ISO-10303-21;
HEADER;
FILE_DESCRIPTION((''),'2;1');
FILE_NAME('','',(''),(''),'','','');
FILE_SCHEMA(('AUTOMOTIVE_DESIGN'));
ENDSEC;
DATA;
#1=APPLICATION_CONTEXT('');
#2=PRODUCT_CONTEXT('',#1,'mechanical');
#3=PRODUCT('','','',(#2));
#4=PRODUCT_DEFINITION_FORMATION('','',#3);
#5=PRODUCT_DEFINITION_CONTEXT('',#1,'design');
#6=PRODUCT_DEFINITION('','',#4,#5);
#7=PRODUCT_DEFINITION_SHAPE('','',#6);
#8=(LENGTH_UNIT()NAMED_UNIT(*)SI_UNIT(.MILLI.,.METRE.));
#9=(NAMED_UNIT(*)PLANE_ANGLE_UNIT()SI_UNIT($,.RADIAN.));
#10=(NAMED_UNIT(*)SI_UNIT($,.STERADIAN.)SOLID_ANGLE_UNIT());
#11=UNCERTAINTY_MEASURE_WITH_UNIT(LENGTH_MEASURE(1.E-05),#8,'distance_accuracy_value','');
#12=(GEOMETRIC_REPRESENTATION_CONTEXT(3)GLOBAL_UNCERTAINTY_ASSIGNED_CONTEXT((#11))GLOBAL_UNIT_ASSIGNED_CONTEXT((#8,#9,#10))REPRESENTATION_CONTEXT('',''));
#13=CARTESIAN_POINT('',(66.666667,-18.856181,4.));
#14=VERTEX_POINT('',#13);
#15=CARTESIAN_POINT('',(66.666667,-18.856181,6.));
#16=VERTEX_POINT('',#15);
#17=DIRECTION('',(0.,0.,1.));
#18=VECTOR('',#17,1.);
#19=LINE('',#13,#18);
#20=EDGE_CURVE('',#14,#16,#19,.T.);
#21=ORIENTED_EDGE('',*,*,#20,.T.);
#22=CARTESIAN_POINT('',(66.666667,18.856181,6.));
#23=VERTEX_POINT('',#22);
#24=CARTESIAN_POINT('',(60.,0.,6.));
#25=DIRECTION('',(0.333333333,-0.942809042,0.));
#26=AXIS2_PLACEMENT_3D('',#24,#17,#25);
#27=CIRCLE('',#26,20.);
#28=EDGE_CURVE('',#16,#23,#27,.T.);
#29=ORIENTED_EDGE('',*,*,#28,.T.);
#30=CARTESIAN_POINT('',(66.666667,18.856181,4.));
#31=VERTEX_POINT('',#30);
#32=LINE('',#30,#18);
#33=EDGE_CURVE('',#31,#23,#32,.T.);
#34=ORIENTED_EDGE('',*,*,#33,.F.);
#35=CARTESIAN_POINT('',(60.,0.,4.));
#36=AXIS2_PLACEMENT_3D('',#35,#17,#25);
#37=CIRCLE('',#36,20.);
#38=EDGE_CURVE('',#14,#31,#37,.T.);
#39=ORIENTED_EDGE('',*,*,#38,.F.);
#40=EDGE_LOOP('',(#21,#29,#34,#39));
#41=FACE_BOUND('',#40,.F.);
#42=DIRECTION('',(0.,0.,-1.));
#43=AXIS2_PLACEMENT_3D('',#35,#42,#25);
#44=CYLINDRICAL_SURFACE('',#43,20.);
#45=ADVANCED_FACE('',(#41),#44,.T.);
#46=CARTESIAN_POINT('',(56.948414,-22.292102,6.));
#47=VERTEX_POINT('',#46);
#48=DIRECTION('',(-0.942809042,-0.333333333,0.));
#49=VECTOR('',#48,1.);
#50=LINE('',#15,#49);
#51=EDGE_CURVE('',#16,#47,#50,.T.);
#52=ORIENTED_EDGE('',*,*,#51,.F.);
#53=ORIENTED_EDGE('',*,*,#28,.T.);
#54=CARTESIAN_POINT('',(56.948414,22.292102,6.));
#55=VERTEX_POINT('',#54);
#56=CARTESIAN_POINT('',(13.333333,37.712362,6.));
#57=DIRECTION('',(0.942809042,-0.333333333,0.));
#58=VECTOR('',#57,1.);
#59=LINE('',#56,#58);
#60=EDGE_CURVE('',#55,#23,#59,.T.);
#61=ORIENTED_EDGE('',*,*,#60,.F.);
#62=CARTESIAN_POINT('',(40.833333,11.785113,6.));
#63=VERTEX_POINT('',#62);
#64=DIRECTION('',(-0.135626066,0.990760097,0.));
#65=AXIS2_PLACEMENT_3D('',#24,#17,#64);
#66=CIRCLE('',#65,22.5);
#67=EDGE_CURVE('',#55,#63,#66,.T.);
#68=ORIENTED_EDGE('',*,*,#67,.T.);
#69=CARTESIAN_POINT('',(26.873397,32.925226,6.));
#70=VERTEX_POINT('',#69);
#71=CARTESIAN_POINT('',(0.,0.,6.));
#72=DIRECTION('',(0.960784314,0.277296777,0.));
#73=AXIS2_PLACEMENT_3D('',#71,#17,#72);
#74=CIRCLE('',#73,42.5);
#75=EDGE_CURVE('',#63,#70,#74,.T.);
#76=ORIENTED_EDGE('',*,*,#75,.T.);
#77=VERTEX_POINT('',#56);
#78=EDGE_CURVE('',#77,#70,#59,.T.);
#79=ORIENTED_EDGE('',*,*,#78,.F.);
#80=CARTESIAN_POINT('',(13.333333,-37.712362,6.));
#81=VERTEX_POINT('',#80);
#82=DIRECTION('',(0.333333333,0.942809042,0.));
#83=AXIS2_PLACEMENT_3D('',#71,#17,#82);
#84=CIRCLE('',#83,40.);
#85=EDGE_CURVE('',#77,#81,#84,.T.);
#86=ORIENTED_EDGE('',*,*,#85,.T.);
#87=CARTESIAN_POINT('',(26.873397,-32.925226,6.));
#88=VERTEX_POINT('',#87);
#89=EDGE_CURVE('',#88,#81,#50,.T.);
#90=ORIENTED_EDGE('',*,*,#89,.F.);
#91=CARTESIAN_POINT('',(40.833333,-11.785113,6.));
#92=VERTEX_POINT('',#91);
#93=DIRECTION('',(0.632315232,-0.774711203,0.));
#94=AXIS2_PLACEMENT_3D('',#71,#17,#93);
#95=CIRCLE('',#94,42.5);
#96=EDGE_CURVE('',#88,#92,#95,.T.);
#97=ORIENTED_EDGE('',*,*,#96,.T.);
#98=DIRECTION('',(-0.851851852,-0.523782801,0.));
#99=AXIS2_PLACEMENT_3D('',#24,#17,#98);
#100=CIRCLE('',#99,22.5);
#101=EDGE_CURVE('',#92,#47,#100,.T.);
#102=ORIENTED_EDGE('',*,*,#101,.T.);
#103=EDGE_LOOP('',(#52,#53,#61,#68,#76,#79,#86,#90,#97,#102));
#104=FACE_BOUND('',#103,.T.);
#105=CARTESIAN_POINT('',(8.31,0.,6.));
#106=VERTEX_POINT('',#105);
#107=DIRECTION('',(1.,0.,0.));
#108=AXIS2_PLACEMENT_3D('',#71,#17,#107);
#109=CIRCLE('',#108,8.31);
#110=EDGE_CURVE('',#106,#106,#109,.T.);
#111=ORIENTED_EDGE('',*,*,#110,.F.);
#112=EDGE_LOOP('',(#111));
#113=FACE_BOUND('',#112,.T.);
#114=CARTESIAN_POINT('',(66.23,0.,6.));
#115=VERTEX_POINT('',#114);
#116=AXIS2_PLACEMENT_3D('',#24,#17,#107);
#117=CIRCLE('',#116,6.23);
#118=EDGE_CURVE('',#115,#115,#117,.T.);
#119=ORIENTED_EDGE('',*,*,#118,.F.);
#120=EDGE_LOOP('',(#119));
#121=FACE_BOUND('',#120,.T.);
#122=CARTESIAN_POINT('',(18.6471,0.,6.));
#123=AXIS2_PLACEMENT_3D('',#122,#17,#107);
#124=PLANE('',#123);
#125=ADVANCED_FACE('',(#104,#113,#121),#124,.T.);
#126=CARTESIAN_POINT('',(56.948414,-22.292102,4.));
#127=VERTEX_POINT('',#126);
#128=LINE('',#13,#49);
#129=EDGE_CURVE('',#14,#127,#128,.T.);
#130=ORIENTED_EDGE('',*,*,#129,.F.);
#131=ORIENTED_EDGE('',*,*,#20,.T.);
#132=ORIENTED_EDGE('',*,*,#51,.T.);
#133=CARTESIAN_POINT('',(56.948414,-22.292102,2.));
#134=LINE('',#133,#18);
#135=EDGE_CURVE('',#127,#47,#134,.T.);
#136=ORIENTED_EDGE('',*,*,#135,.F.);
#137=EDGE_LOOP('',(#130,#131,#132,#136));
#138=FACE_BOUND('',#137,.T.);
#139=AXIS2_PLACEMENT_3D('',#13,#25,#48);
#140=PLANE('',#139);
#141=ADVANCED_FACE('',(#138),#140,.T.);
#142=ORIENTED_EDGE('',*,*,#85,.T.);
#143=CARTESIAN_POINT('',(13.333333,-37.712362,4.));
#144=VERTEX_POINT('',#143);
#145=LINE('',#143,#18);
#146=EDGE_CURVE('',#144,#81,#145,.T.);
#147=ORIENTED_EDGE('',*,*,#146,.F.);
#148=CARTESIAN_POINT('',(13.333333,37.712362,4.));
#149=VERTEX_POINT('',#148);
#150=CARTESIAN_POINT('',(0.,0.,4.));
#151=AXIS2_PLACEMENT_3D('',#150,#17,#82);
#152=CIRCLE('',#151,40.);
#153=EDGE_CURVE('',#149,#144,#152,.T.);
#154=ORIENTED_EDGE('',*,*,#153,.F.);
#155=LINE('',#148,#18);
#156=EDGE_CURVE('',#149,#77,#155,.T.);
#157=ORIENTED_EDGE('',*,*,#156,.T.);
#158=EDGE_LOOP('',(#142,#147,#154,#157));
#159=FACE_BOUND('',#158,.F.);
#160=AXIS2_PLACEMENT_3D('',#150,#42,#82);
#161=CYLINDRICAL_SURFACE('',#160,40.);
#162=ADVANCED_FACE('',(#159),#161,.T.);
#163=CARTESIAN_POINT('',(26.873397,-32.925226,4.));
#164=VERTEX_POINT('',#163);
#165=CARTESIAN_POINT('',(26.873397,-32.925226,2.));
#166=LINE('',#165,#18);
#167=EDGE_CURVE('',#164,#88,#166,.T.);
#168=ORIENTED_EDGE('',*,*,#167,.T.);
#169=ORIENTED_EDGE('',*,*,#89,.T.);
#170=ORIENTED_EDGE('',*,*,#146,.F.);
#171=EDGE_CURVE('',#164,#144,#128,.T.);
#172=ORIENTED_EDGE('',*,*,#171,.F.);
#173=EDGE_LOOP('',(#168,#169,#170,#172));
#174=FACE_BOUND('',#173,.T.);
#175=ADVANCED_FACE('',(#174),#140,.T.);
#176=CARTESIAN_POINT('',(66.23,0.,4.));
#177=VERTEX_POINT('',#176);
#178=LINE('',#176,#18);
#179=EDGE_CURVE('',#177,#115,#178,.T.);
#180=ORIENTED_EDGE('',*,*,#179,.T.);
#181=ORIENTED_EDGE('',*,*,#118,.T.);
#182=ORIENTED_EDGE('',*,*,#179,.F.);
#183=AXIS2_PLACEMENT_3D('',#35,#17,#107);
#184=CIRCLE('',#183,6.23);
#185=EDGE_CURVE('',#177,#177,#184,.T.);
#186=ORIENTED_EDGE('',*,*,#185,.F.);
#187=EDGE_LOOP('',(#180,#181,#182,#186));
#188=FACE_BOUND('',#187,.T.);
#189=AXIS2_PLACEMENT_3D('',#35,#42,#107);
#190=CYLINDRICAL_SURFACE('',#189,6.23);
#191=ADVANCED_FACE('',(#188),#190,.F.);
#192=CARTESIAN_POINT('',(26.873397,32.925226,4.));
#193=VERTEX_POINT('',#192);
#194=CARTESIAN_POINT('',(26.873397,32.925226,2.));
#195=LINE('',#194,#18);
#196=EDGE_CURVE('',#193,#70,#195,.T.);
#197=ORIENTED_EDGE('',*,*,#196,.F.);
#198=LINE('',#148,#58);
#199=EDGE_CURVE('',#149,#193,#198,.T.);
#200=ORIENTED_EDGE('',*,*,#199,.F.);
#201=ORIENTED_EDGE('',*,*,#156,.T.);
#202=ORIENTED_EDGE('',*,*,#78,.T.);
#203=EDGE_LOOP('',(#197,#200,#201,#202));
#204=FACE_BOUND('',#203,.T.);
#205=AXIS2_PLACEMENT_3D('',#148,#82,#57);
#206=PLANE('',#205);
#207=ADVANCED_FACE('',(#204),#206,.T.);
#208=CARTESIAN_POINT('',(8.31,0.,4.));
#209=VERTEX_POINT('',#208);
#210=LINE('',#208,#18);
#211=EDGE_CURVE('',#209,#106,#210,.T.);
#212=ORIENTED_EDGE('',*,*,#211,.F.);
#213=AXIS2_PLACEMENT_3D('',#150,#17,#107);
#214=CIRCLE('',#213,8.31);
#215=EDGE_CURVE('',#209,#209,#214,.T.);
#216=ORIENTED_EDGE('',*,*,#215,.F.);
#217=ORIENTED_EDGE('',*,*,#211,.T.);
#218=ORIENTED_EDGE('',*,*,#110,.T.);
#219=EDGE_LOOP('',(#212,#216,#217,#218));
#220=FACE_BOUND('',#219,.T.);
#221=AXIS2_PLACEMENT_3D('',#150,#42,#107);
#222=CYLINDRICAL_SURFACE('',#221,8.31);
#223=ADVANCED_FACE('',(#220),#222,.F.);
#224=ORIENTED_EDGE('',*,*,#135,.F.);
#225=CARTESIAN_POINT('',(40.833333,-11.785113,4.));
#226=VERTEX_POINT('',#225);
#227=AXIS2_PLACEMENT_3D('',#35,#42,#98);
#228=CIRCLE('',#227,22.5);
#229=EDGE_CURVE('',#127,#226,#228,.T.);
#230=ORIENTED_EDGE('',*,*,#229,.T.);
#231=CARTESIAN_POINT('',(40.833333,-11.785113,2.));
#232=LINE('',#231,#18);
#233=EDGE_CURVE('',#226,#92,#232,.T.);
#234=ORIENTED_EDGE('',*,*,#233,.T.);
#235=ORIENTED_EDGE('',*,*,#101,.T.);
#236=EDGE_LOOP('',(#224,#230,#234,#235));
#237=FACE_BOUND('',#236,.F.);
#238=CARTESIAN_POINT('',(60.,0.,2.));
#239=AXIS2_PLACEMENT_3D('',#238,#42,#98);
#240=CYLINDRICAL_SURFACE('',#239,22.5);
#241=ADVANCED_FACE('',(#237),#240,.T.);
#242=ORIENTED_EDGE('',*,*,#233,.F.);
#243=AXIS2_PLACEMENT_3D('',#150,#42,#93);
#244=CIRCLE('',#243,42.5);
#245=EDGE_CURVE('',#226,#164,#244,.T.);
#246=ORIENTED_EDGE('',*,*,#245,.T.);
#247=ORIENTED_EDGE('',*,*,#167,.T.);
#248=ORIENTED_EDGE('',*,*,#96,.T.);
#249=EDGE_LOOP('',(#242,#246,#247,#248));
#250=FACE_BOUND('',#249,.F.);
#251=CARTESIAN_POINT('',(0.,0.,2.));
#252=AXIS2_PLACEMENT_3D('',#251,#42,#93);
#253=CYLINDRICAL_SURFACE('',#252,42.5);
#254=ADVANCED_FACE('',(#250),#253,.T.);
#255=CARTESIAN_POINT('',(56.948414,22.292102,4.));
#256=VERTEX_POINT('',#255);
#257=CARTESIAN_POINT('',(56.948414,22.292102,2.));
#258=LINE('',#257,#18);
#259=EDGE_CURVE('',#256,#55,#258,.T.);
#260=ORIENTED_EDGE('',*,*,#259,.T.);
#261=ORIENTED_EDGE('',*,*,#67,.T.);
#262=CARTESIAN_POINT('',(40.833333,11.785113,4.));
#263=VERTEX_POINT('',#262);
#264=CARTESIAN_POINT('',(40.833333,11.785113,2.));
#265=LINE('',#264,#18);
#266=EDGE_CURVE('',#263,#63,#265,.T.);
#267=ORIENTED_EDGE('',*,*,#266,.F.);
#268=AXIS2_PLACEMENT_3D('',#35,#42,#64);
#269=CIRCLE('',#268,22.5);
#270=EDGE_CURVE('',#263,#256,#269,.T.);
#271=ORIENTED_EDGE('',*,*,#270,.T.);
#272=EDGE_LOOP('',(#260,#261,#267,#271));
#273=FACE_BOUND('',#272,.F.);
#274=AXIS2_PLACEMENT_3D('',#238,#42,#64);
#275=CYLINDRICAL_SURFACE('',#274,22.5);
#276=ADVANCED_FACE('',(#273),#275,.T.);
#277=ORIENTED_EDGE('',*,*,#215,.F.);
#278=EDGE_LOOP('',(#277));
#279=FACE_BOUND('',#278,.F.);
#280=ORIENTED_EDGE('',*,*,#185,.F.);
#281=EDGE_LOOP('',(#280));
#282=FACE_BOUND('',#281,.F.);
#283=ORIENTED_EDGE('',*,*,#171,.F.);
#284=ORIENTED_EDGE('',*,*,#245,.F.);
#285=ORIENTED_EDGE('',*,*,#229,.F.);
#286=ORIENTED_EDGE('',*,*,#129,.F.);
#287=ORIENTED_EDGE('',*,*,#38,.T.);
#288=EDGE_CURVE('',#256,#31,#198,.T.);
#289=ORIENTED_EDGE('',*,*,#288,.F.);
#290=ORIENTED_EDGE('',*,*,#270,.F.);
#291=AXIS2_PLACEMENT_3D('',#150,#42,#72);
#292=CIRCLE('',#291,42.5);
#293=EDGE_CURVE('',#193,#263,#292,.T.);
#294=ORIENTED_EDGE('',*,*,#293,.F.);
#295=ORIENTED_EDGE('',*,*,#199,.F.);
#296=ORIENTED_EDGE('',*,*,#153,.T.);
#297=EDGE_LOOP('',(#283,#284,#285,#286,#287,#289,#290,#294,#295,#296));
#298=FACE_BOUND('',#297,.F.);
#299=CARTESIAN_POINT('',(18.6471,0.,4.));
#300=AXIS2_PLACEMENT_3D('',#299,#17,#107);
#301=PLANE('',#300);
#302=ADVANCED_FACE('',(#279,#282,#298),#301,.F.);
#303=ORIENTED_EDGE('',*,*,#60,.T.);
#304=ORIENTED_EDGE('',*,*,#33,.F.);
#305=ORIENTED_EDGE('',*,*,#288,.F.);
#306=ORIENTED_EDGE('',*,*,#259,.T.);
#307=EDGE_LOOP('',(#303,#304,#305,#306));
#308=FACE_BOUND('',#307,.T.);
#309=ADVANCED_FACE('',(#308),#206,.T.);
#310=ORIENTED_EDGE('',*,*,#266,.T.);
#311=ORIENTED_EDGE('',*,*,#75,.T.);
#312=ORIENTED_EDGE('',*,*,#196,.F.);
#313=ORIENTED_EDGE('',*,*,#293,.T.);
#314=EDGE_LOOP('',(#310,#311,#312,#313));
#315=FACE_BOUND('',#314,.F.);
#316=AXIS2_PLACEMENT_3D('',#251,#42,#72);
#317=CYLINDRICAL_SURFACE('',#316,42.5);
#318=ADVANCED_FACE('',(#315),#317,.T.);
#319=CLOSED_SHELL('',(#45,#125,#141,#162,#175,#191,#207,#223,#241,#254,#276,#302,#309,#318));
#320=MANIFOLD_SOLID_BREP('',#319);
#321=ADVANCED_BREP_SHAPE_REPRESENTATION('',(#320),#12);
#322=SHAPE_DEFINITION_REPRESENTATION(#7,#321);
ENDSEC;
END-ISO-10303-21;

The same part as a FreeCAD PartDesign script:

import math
import FreeCAD as App
import Part
import Sketcher
Q = App.Units.Quantity

doc = App.newDocument("Part")
body = doc.addObject("PartDesign::Body", "Body")
body.AllowCompound = True

# Sketch on XY plane
sketch1 = body.newObject("Sketcher::SketchObject", "Sketch")
sketch1.AttachmentSupport = (doc.getObject("XY_Plane"), [""])
sketch1.MapMode = "FlatFace"
sketch1.AttachmentOffset = App.Placement(App.Vector(0, 0, 2), App.Rotation())
sketch1.addGeometry(Part.ArcOfCircle(Part.Circle(App.Vector(0, 0, 0), App.Vector(0, 0, 1), 42), math.radians(-51), math.radians(-16)), False)
sketch1.addGeometry(Part.LineSegment(App.Vector(27, -33, 0), App.Vector(57, -22, 0)), False)
sketch1.addGeometry(Part.ArcOfCircle(Part.Circle(App.Vector(60, 0, 0), App.Vector(0, 0, 1), 22), math.radians(-148), math.radians(-98)), False)
sketch1.addGeometry(Part.ArcOfCircle(Part.Circle(App.Vector(60, 0, 0), App.Vector(0, 0, 1), 22), math.radians(98), math.radians(148)), False)
sketch1.addGeometry(Part.LineSegment(App.Vector(57, 22, 0), App.Vector(27, 33, 0)), False)
sketch1.addGeometry(Part.ArcOfCircle(Part.Circle(App.Vector(0, 0, 0), App.Vector(0, 0, 1), 42), math.radians(16), math.radians(51)), False)
sketch1.addConstraint(Sketcher.Constraint("Coincident", 0, 1, 1, 1))
sketch1.addConstraint(Sketcher.Constraint("Coincident", 1, 2, 2, 2))
sketch1.addConstraint(Sketcher.Constraint("Coincident", 2, 1, 0, 2))
sketch1.addConstraint(Sketcher.Constraint("Coincident", 3, 1, 4, 1))
sketch1.addConstraint(Sketcher.Constraint("Coincident", 4, 2, 5, 2))
sketch1.addConstraint(Sketcher.Constraint("Coincident", 5, 1, 3, 2))
sketch1.addConstraint(Sketcher.Constraint("Coincident", 0, 3, -1, 1))
sketch1.addConstraint(Sketcher.Constraint("Coincident", 5, 3, -1, 1))
sketch1.addConstraint(Sketcher.Constraint("Coincident", 3, 3, 2, 3))
sketch1.addConstraint(Sketcher.Constraint("Equal", 2, 3))
sketch1.addConstraint(Sketcher.Constraint("Equal", 0, 5))
sketch1.addConstraint(Sketcher.Constraint("Symmetric", 1, 2, 3, 1, -1))
sketch1.addConstraint(Sketcher.Constraint("Vertical", 0, 1, 4, 2))
sketch1.addConstraint(Sketcher.Constraint("Radius", 0, Q("42.5 mm")))
sketch1.addConstraint(Sketcher.Constraint("Radius", 2, Q("22.5 mm")))
sketch1.addConstraint(Sketcher.Constraint("DistanceX", -1, 1, 2, 3, Q("60 mm")))
sketch1.addConstraint(Sketcher.Constraint("Distance", 1, Q("31.899372 mm")))
sketch1.addConstraint(Sketcher.Constraint("DistanceX", 2, 1, 1, 2, Q("16.11508 mm")))
pad1 = body.newObject("PartDesign::Pad", "Pad")
pad1.Profile = sketch1
pad1.Length = 4
body2 = doc.addObject("PartDesign::Body", "Body001")

# Sketch on XY plane
sketch2 = body2.newObject("Sketcher::SketchObject", "Sketch001")
sketch2.AttachmentSupport = (doc.getObject("XY_Plane001"), [""])
sketch2.MapMode = "FlatFace"
sketch2.AttachmentOffset = App.Placement(App.Vector(0, 0, 4), App.Rotation())
sketch2.addGeometry(Part.ArcOfCircle(Part.Circle(App.Vector(0, 0, 0), App.Vector(0, 0, 1), 40), math.radians(71), math.radians(289)), False)
sketch2.addGeometry(Part.LineSegment(App.Vector(13, -38, 0), App.Vector(67, -19, 0)), False)
sketch2.addGeometry(Part.ArcOfCircle(Part.Circle(App.Vector(60, 0, 0), App.Vector(0, 0, 1), 20), math.radians(-71), math.radians(71)), False)
sketch2.addGeometry(Part.LineSegment(App.Vector(67, 19, 0), App.Vector(13, 38, 0)), False)
sketch2.addGeometry(Part.Circle(App.Vector(0, 0, 0), App.Vector(0, 0, 1), 8), False)
sketch2.addGeometry(Part.Circle(App.Vector(60, 0, 0), App.Vector(0, 0, 1), 6), False)
sketch2.addConstraint(Sketcher.Constraint("Tangent", 0, 2, 1, 1))
sketch2.addConstraint(Sketcher.Constraint("Tangent", 1, 2, 2, 1))
sketch2.addConstraint(Sketcher.Constraint("Tangent", 2, 2, 3, 1))
sketch2.addConstraint(Sketcher.Constraint("Tangent", 3, 2, 0, 1))
sketch2.addConstraint(Sketcher.Constraint("Coincident", 0, 3, -1, 1))
sketch2.addConstraint(Sketcher.Constraint("Coincident", 4, 3, -1, 1))
sketch2.addConstraint(Sketcher.Constraint("Coincident", 5, 3, 2, 3))
sketch2.addConstraint(Sketcher.Constraint("PointOnObject", 2, 3, -1))
sketch2.addConstraint(Sketcher.Constraint("Radius", 0, Q("40 mm")))
sketch2.addConstraint(Sketcher.Constraint("Radius", 2, Q("20 mm")))
sketch2.addConstraint(Sketcher.Constraint("Diameter", 4, Q("16.62 mm")))
sketch2.addConstraint(Sketcher.Constraint("Diameter", 5, Q("12.46 mm")))
sketch2.addConstraint(Sketcher.Constraint("DistanceX", -1, 1, 2, 3, Q("60 mm")))
pad2 = body2.newObject("PartDesign::Pad", "Pad001")
pad2.Profile = sketch2
pad2.Length = 2
doc.recompute()

boolean = body2.newObject("PartDesign::Boolean", "Boolean")
boolean.Type = "Cut"
boolean.addObjects([body])

doc.recompute()
